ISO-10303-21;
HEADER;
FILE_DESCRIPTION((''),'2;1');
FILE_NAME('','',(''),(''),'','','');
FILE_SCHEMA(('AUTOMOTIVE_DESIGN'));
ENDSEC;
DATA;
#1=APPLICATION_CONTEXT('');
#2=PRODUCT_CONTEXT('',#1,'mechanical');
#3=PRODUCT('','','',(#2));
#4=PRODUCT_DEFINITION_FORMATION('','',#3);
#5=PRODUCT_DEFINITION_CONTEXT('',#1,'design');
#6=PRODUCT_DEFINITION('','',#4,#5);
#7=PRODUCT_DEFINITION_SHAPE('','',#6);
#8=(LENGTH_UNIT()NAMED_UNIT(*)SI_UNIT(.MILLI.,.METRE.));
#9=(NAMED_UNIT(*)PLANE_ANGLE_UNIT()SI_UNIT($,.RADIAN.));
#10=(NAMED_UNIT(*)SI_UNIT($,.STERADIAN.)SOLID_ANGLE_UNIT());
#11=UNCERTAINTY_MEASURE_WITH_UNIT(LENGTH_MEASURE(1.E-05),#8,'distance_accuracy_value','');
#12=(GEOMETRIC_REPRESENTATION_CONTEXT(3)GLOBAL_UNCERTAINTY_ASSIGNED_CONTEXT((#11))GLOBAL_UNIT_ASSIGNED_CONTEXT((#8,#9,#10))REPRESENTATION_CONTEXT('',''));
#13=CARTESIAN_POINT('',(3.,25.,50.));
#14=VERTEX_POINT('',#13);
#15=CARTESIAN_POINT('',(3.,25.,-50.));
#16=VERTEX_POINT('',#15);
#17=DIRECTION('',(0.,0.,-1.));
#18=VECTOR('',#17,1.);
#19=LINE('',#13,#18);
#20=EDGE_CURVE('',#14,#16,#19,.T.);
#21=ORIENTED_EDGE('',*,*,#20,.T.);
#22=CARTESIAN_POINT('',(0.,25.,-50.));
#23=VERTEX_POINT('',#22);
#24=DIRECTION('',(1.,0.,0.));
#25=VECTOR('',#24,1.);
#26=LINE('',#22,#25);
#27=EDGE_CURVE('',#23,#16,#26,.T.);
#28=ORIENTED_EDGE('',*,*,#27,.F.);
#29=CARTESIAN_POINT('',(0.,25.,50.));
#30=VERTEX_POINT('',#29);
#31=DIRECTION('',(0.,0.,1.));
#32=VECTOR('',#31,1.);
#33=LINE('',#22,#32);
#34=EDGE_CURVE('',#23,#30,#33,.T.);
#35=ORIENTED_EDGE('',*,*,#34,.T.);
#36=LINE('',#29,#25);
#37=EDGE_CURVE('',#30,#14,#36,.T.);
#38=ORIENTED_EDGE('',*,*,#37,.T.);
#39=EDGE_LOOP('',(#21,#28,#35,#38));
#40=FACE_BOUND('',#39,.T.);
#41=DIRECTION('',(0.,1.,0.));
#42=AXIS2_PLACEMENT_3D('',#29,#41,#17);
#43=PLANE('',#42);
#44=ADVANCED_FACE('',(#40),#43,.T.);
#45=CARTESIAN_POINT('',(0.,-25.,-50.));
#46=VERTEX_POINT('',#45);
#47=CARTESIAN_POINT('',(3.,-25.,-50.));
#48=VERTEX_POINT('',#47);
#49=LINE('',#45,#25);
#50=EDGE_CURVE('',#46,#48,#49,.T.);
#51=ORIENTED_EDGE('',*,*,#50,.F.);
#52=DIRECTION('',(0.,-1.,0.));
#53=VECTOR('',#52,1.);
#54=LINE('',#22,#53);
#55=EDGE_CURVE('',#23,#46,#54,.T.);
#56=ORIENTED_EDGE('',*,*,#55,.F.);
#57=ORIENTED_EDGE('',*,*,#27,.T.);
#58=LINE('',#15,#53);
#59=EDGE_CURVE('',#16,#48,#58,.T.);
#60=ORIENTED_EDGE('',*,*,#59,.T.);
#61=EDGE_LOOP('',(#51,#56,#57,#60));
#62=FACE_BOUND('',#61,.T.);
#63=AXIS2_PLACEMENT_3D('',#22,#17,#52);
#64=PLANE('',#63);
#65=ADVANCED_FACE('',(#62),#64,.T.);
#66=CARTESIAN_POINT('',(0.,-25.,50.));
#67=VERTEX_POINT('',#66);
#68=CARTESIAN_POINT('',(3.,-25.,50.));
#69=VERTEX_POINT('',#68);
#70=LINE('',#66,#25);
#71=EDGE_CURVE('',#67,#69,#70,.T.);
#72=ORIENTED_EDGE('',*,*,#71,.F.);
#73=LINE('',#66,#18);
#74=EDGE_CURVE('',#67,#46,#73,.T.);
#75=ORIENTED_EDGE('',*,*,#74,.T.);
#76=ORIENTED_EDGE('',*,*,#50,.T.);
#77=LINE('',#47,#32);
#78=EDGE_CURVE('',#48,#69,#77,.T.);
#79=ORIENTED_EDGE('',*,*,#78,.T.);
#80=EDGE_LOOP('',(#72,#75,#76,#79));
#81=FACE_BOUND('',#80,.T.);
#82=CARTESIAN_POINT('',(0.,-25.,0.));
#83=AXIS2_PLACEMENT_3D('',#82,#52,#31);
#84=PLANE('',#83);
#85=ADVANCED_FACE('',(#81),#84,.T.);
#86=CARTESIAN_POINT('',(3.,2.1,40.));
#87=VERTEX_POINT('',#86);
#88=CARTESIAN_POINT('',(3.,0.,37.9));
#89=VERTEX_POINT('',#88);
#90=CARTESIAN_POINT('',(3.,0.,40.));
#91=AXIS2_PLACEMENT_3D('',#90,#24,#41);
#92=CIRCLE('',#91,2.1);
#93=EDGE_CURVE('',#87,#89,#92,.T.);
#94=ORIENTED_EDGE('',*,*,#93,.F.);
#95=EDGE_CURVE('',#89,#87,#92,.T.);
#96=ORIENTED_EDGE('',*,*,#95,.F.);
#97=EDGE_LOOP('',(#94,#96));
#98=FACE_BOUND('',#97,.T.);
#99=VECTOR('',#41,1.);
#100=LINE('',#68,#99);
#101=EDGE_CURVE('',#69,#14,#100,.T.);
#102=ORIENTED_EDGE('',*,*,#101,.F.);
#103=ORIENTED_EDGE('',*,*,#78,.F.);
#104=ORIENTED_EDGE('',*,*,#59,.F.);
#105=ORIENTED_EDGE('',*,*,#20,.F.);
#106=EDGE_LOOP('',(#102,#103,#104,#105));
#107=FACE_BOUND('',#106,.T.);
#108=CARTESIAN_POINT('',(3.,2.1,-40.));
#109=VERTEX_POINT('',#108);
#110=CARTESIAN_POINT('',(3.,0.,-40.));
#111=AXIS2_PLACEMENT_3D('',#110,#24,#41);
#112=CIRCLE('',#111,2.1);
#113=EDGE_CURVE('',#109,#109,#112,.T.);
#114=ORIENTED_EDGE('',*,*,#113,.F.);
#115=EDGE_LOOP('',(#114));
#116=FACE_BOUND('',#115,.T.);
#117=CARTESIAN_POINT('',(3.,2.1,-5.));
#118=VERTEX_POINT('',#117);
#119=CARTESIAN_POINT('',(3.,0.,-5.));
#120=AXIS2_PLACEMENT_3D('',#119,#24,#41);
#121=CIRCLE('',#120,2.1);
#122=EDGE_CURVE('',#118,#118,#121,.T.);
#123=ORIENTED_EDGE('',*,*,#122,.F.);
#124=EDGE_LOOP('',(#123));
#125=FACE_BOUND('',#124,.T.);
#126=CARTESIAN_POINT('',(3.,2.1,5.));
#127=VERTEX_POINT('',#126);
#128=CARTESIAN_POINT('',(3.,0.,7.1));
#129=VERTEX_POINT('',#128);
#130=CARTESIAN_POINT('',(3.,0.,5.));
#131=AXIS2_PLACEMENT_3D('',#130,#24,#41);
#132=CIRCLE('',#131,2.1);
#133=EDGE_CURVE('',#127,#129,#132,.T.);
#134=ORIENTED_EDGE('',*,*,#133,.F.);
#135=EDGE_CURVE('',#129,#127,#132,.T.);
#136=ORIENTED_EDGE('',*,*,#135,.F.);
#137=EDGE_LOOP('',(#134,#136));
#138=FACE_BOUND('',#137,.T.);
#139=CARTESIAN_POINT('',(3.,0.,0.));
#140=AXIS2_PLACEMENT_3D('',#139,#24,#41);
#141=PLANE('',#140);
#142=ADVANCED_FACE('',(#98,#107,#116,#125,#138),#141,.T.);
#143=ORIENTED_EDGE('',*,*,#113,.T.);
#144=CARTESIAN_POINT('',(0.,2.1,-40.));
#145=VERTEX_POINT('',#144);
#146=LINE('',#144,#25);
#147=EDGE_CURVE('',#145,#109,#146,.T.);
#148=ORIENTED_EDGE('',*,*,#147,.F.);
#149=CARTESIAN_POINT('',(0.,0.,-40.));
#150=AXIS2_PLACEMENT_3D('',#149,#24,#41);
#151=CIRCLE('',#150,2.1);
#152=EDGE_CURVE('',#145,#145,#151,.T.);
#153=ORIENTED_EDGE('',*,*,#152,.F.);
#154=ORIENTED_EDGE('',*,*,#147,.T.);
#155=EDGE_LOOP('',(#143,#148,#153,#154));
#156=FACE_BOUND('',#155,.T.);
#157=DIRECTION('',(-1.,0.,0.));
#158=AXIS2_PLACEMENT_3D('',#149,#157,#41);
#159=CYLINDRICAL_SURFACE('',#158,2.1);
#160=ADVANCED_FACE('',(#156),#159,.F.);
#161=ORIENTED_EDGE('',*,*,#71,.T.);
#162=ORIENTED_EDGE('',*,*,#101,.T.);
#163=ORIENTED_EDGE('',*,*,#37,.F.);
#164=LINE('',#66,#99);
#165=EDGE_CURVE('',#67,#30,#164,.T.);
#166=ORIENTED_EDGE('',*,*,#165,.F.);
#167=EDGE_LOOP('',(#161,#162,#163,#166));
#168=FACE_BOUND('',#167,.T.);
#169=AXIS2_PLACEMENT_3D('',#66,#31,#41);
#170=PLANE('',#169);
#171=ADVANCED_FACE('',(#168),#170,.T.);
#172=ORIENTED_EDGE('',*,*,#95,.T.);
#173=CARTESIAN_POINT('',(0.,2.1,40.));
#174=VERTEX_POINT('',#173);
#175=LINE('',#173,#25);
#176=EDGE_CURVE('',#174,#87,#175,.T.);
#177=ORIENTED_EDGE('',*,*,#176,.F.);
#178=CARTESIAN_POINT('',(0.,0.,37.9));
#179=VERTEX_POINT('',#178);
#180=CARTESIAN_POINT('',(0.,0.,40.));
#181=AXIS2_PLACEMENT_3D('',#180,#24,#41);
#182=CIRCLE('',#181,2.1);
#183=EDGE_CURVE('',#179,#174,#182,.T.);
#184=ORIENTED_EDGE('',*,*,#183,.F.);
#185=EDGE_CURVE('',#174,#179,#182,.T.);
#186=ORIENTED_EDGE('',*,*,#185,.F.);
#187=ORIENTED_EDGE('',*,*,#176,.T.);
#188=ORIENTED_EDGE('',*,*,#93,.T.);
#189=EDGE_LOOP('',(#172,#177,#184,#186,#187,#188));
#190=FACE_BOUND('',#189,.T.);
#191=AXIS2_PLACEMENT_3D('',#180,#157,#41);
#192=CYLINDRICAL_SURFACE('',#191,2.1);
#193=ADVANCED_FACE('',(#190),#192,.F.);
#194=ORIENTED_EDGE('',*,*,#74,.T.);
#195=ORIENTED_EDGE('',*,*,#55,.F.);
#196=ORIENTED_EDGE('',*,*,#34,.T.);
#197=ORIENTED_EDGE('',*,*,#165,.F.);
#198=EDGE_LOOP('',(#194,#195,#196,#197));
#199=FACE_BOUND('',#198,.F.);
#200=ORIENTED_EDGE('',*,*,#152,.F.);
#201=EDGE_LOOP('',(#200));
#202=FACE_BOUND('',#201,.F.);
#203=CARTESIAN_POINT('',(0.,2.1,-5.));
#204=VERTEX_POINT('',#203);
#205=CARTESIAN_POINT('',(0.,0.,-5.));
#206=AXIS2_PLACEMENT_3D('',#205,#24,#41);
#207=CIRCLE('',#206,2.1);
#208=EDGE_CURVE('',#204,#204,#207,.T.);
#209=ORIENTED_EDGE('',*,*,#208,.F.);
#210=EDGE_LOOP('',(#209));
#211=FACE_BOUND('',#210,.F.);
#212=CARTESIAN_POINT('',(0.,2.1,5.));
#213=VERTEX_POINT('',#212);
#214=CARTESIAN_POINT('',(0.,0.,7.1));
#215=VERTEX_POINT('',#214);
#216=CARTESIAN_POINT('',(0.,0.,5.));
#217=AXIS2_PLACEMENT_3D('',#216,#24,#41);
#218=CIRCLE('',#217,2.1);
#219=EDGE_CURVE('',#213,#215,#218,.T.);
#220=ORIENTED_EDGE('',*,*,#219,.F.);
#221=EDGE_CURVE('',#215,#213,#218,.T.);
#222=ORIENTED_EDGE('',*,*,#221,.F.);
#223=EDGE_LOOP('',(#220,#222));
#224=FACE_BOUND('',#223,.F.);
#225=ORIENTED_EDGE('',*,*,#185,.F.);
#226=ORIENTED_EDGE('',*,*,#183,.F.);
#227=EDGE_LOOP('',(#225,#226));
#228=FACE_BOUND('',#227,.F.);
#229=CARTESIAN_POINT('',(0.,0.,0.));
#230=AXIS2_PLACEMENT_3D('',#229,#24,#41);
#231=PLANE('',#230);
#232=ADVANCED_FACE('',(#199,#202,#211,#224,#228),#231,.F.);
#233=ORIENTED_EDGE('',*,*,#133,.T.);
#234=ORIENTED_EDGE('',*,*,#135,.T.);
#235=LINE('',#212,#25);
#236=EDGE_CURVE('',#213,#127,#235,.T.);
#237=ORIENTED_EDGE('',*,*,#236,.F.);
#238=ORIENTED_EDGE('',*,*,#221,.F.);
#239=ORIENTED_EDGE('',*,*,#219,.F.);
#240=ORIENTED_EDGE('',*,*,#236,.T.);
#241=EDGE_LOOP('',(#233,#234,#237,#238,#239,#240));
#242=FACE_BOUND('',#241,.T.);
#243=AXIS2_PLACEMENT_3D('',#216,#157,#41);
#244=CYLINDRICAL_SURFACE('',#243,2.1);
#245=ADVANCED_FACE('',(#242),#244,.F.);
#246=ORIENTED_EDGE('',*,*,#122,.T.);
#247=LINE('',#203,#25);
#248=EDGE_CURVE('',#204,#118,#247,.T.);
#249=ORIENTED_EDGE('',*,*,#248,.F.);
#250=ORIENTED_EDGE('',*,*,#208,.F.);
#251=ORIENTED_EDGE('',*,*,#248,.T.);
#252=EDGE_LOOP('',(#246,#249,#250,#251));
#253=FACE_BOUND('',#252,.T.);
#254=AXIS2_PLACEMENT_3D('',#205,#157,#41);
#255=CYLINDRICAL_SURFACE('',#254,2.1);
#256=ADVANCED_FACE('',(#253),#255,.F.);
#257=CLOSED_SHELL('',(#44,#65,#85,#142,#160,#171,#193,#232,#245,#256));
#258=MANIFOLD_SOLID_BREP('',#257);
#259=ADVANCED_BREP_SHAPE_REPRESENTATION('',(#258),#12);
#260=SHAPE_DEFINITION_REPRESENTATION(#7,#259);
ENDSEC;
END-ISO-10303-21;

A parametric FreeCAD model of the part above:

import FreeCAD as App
import Part
import Sketcher

V = App.Vector
Q = App.Units.Quantity

doc = App.newDocument("Part")
body = doc.addObject("PartDesign::Body", "Body")

sketch1 = doc.addObject("Sketcher::SketchObject", "Sketch")
body.addObject(sketch1)
sketch1.AttachmentSupport = (doc.YZ_Plane, [""])
sketch1.MapMode = "FlatFace"
sketch1.addGeometry([
    Part.LineSegment(V(25, 50, 0), V(-25, 50, 0)),
    Part.LineSegment(V(-25, 50, 0), V(-25, -50, 0)),
    Part.LineSegment(V(-25, -50, 0), V(25, -50, 0)),
    Part.LineSegment(V(25, -50, 0), V(25, 50, 0)),
    Part.Circle(V(0, 5, 0), V(0, 0, 1), 2.1),
    Part.Circle(V(0, 40, 0), V(0, 0, 1), 2.1),
    Part.Circle(V(0, -5, 0), V(0, 0, 1), 2.1),
    Part.Circle(V(0, -40, 0), V(0, 0, 1), 2.1),
], False)
sketch1.addConstraint([
    Sketcher.Constraint("Coincident", 0, 2, 1, 1),
    Sketcher.Constraint("Coincident", 1, 2, 2, 1),
    Sketcher.Constraint("Coincident", 2, 2, 3, 1),
    Sketcher.Constraint("Coincident", 3, 2, 0, 1),
    Sketcher.Constraint("Horizontal", 0),
    Sketcher.Constraint("Vertical", 1),
    Sketcher.Constraint("Horizontal", 2),
    Sketcher.Constraint("Vertical", 3),
    Sketcher.Constraint("Equal", 4, 5),
    Sketcher.Constraint("Equal", 5, 6),
    Sketcher.Constraint("Equal", 6, 7),
    Sketcher.Constraint("Symmetric", 4, 3, 6, 3, -1, 1),
    Sketcher.Constraint("Symmetric", 5, 3, 7, 3, -1, 1),
    Sketcher.Constraint("Symmetric", 0, 2, 2, 2, -1, 1),
    Sketcher.Constraint("PointOnObject", 4, 3, -2),
    Sketcher.Constraint("PointOnObject", 5, 3, -2),
    Sketcher.Constraint("Diameter", 4, Q("4.2 mm")),
    Sketcher.Constraint("DistanceX", 0, 2, 0, 1, Q("50 mm")),
    Sketcher.Constraint("DistanceY", 1, 2, 1, 1, Q("100 mm")),
    Sketcher.Constraint("DistanceY", 4, 3, 5, 3, Q("35 mm")),
    Sketcher.Constraint("DistanceY", 6, 3, 4, 3, Q("10 mm")),
])
pad1 = doc.addObject("PartDesign::Pad", "Pad")
body.addObject(pad1)
pad1.Profile = sketch1
pad1.Length = 3

doc.recompute()
